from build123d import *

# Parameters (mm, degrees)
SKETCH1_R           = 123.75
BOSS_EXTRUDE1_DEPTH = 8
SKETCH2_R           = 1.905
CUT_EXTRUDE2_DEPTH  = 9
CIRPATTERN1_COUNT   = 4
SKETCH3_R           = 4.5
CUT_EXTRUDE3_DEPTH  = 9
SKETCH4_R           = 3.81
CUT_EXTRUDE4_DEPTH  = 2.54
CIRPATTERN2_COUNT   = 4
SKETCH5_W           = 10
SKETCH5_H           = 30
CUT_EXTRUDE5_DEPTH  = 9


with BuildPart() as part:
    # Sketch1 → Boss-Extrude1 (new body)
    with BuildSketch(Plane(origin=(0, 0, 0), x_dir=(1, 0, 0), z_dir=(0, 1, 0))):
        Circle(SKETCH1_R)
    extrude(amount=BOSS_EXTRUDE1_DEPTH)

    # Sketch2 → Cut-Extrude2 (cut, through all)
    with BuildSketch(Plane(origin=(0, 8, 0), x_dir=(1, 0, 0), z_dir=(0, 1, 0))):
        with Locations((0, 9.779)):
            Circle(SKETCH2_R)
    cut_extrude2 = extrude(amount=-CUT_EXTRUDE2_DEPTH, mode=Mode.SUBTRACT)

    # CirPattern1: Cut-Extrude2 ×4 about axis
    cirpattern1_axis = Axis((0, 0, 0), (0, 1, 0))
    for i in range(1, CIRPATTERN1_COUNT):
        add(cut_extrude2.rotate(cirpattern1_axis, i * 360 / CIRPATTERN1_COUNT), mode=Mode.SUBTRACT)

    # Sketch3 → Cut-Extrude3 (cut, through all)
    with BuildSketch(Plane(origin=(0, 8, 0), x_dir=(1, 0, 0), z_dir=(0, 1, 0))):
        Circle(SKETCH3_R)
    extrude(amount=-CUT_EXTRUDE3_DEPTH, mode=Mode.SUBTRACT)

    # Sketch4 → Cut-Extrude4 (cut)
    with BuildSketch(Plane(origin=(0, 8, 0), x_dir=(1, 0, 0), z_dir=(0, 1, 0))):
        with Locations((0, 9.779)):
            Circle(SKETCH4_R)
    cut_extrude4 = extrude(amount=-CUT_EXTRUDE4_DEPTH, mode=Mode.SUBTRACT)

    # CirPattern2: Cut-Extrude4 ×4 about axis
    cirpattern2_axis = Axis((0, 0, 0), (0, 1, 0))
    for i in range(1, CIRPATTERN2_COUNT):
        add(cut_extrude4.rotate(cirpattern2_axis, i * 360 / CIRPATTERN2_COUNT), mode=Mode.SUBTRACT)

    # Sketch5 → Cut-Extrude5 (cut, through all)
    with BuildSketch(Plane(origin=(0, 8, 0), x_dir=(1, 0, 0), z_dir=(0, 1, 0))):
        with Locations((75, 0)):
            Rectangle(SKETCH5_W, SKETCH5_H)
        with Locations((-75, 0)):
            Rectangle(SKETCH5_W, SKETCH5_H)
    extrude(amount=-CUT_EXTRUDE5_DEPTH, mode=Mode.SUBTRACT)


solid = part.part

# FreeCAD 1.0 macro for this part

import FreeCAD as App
import Part
import Sketcher


def add_polygon(sketch, points):
    """Adds a closed chain of lines whose ends are joined by coincident constraints."""
    first, n = sketch.GeometryCount, len(points)
    for a, b in zip(points, points[1:] + points[:1]):
        sketch.addGeometry(Part.LineSegment(App.Vector(*a, 0), App.Vector(*b, 0)), False)
    for i in range(n):
        sketch.addConstraint(Sketcher.Constraint("Coincident", first + i, 2, first + (i + 1) % n, 1))

doc = App.newDocument("Part")
body = doc.addObject("PartDesign::Body", "Body")

sketch1 = body.newObject("Sketcher::SketchObject", "Sketch")
sketch1.AttachmentSupport = (doc.getObject("XZ_Plane"), [""])
sketch1.MapMode = "FlatFace"
sketch1.addGeometry(Part.Circle(App.Vector(0, 0, 0), App.Vector(0, 0, 1), 123.75), False)
sketch1.addConstraint(Sketcher.Constraint("Coincident", 0, 3, -1, 1))
sketch1.addConstraint(Sketcher.Constraint("Diameter", 0, 247.5))
pad1 = body.newObject("PartDesign::Pad", "Pad")
pad1.Profile = sketch1
pad1.Length = 8
pad1.Reversed = True

sketch2 = body.newObject("Sketcher::SketchObject", "Sketch001")
sketch2.AttachmentSupport = (doc.getObject("XZ_Plane"), [""])
sketch2.MapMode = "FlatFace"
sketch2.AttachmentOffset = App.Placement(App.Vector(0, 0, -8), App.Rotation())
sketch2.addGeometry(Part.Circle(App.Vector(0, -9.779, 0), App.Vector(0, 0, 1), 1.905), False)
sketch2.addConstraint(Sketcher.Constraint("PointOnObject", 0, 3, -2))
sketch2.addConstraint(Sketcher.Constraint("Diameter", 0, 3.81))
sketch2.addConstraint(Sketcher.Constraint("DistanceY", 0, 3, -1, 1, 9.779))
pocket1 = body.newObject("PartDesign::Pocket", "Pocket")
pocket1.Profile = sketch2
pocket1.Type = "ThroughAll"
pocket1.Reversed = True
doc.recompute()

polarpattern = body.newObject("PartDesign::PolarPattern", "PolarPattern")
polarpattern.Originals = [pocket1]
polarpattern.Axis = (doc.getObject("Y_Axis"), [""])
polarpattern.Angle = 360
polarpattern.Occurrences = 4
body.Tip = polarpattern

sketch3 = body.newObject("Sketcher::SketchObject", "Sketch002")
sketch3.AttachmentSupport = (doc.getObject("XZ_Plane"), [""])
sketch3.MapMode = "FlatFace"
sketch3.AttachmentOffset = App.Placement(App.Vector(0, 0, -8), App.Rotation())
sketch3.addGeometry(Part.Circle(App.Vector(0, 0, 0), App.Vector(0, 0, 1), 4.5), False)
sketch3.addConstraint(Sketcher.Constraint("Coincident", 0, 3, -1, 1))
sketch3.addConstraint(Sketcher.Constraint("Diameter", 0, 9.0))
pocket2 = body.newObject("PartDesign::Pocket", "Pocket001")
pocket2.Profile = sketch3
pocket2.Type = "ThroughAll"
pocket2.Reversed = True

sketch4 = body.newObject("Sketcher::SketchObject", "Sketch003")
sketch4.AttachmentSupport = (doc.getObject("XZ_Plane"), [""])
sketch4.MapMode = "FlatFace"
sketch4.AttachmentOffset = App.Placement(App.Vector(0, 0, -8), App.Rotation())
sketch4.addGeometry(Part.Circle(App.Vector(0, -9.779, 0), App.Vector(0, 0, 1), 3.81), False)
sketch4.addConstraint(Sketcher.Constraint("PointOnObject", 0, 3, -2))
sketch4.addConstraint(Sketcher.Constraint("Diameter", 0, 7.62))
sketch4.addConstraint(Sketcher.Constraint("DistanceY", 0, 3, -1, 1, 9.779))
pocket3 = body.newObject("PartDesign::Pocket", "Pocket002")
pocket3.Profile = sketch4
pocket3.Length = 2.54
pocket3.Reversed = True
doc.recompute()

polarpattern2 = body.newObject("PartDesign::PolarPattern", "PolarPattern001")
polarpattern2.Originals = [pocket3]
polarpattern2.Axis = (doc.getObject("Y_Axis"), [""])
polarpattern2.Angle = 360
polarpattern2.Occurrences = 4
body.Tip = polarpattern2

sketch5 = body.newObject("Sketcher::SketchObject", "Sketch004")
sketch5.AttachmentSupport = (doc.getObject("XZ_Plane"), [""])
sketch5.MapMode = "FlatFace"
sketch5.AttachmentOffset = App.Placement(App.Vector(0, 0, -8), App.Rotation())
add_polygon(sketch5, [(70, -15), (70, 15), (80, 15), (80, -15)])
add_polygon(sketch5, [(-80, -15), (-80, 15), (-70, 15), (-70, -15)])
sketch5.addConstraint(Sketcher.Constraint("Vertical", 0))
sketch5.addConstraint(Sketcher.Constraint("Horizontal", 1))
sketch5.addConstraint(Sketcher.Constraint("Vertical", 2))
sketch5.addConstraint(Sketcher.Constraint("Horizontal", 3))
sketch5.addConstraint(Sketcher.Constraint("Vertical", 4))
sketch5.addConstraint(Sketcher.Constraint("Horizontal", 5))
sketch5.addConstraint(Sketcher.Constraint("Vertical", 6))
sketch5.addConstraint(Sketcher.Constraint("Horizontal", 7))
sketch5.addConstraint(Sketcher.Constraint("Symmetric", 2, 2, 4, 2, -1, 1))
sketch5.addConstraint(Sketcher.Constraint("Symmetric", 0, 2, 6, 2, -1, 1))
sketch5.addConstraint(Sketcher.Constraint("Horizontal", 1, 2, 4, 2))
sketch5.addConstraint(Sketcher.Constraint("DistanceX", 1, 1, 1, 2, 10.0))
sketch5.addConstraint(Sketcher.Constraint("DistanceY", 0, 1, 0, 2, 30.0))
sketch5.addConstraint(Sketcher.Constraint("DistanceX", -1, 1, 0, 2, 70.0))
pocket4 = body.newObject("PartDesign::Pocket", "Pocket003")
pocket4.Profile = sketch5
pocket4.Type = "ThroughAll"
pocket4.Reversed = True

doc.recompute()
